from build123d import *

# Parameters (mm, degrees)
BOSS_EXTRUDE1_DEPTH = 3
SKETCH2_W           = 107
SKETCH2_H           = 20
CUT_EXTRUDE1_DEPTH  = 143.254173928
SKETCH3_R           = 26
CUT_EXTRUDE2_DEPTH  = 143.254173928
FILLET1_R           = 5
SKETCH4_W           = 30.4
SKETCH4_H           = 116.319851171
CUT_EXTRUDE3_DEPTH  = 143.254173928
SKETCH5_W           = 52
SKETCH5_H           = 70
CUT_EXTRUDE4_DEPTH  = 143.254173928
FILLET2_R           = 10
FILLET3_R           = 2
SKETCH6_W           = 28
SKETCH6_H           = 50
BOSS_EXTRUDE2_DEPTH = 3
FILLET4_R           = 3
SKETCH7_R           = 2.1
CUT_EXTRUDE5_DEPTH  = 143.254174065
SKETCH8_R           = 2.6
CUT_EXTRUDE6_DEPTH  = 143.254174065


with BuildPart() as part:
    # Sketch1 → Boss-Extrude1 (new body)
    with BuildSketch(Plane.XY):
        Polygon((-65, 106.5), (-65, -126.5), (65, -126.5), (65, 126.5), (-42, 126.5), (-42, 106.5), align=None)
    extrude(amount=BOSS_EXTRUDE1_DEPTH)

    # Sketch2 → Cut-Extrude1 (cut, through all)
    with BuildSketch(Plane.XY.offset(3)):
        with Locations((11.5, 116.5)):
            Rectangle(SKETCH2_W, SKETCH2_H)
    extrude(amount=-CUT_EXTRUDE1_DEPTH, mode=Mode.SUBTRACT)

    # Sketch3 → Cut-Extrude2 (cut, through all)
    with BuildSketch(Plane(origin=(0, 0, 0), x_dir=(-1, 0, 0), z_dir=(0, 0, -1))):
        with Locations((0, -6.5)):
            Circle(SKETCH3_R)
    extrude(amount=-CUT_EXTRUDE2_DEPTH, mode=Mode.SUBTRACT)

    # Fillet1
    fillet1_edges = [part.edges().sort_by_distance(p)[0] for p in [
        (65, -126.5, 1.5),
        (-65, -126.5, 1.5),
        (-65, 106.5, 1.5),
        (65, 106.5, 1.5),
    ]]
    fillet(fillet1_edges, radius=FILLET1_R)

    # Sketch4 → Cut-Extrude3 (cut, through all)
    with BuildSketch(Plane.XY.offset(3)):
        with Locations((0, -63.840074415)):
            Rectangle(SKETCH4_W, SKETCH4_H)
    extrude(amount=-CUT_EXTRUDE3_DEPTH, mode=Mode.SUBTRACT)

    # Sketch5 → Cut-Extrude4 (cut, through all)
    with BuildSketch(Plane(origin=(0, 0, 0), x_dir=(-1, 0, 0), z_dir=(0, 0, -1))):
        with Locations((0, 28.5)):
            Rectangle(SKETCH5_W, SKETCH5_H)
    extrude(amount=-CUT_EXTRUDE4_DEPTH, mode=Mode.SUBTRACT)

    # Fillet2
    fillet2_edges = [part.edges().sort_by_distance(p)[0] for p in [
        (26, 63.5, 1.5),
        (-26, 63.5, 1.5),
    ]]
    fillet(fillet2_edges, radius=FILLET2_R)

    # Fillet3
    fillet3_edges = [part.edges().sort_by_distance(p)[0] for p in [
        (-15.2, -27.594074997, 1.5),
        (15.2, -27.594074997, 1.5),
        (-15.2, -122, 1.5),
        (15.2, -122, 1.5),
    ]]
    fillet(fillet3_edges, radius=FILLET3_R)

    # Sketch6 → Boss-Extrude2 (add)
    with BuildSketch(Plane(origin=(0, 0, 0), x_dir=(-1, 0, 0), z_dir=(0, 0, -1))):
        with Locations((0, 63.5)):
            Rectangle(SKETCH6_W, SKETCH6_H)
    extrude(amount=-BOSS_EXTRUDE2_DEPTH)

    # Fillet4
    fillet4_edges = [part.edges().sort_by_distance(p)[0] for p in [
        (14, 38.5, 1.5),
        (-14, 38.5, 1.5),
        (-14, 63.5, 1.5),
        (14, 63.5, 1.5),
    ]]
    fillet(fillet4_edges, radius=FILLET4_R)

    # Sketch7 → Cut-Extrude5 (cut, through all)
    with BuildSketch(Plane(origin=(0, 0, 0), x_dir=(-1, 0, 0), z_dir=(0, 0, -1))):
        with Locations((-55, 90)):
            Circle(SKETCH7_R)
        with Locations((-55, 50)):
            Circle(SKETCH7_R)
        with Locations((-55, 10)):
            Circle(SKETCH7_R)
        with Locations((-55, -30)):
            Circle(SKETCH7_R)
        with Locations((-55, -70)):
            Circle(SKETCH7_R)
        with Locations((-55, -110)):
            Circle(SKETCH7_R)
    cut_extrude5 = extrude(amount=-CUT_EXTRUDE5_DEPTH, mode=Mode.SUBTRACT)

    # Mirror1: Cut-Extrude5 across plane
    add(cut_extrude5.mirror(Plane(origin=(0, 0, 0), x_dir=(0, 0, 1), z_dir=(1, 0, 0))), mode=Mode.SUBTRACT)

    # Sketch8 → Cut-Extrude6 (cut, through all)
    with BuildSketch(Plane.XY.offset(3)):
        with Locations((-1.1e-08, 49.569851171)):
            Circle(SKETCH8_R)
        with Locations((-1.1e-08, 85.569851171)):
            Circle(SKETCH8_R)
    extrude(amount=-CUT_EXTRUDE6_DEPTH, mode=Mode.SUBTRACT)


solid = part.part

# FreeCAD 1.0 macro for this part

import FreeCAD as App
import Part
import Sketcher
from FreeCAD import Vector


def edges_at(feature, points):
    """Names of the edges that pass closest to the given points."""
    edges = feature.Shape.Edges
    near = lambda p: min(range(len(edges)), key=lambda i: edges[i].distToShape(Part.Vertex(*p))[0])
    return sorted({f"Edge{near(p) + 1}" for p in points})

doc = App.newDocument("Part")
params = doc.addObject("Spreadsheet::Sheet", "Params")
for row, (alias, value) in enumerate([
    ("sketch1_width", "130 mm"),
    ("sketch1_width2", "107 mm"),
    ("sketch1_height", "233 mm"),
    ("sketch1_height2", "253 mm"),
    ("pad1_length", "3 mm"),
    ("sketch2_width", "107 mm"),
    ("sketch2_height", "20 mm"),
    ("sketch3_diameter", "52 mm"),
    ("fillet_radius", "5 mm"),
    ("sketch4_width", "30.4 mm"),
    ("sketch5_width", "52 mm"),
    ("sketch5_height", "70 mm"),
    ("fillet2_radius", "10 mm"),
    ("fillet3_radius", "2 mm"),
    ("sketch6_width", "28 mm"),
    ("sketch6_height", "50 mm"),
    ("pad2_length", "3 mm"),
    ("fillet4_radius", "3 mm"),
    ("sketch7_diameter", "4.2 mm"),
    ("sketch8_diameter", "5.2 mm"),
], start=1):
    params.set(f"A{row}", alias)
    params.set(f"B{row}", "=" + value)
    params.setAlias(f"B{row}", alias)

body = doc.addObject("PartDesign::Body", "Body")

sketch1 = body.newObject("Sketcher::SketchObject", "Sketch")
sketch1.AttachmentSupport = (doc.getObject("XY_Plane"), [""])
sketch1.MapMode = "FlatFace"
sketch1.addGeometry(Part.LineSegment(Vector(-65, 106.5, 0), Vector(-65, -126.5, 0)), False)
sketch1.addGeometry(Part.LineSegment(Vector(-65, -126.5, 0), Vector(65, -126.5, 0)), False)
sketch1.addGeometry(Part.LineSegment(Vector(65, -126.5, 0), Vector(65, 126.5, 0)), False)
sketch1.addGeometry(Part.LineSegment(Vector(65, 126.5, 0), Vector(-42, 126.5, 0)), False)
sketch1.addGeometry(Part.LineSegment(Vector(-42, 126.5, 0), Vector(-42, 106.5, 0)), False)
sketch1.addGeometry(Part.LineSegment(Vector(-42, 106.5, 0), Vector(-65, 106.5, 0)), False)
sketch1.addConstraint(Sketcher.Constraint("Coincident", 0, 2, 1, 1))
sketch1.addConstraint(Sketcher.Constraint("Coincident", 1, 2, 2, 1))
sketch1.addConstraint(Sketcher.Constraint("Coincident", 2, 2, 3, 1))
sketch1.addConstraint(Sketcher.Constraint("Coincident", 3, 2, 4, 1))
sketch1.addConstraint(Sketcher.Constraint("Coincident", 4, 2, 5, 1))
sketch1.addConstraint(Sketcher.Constraint("Coincident", 5, 2, 0, 1))
sketch1.addConstraint(Sketcher.Constraint("Vertical", 0))
sketch1.addConstraint(Sketcher.Constraint("Horizontal", 1))
sketch1.addConstraint(Sketcher.Constraint("Vertical", 2))
sketch1.addConstraint(Sketcher.Constraint("Horizontal", 3))
sketch1.addConstraint(Sketcher.Constraint("Vertical", 4))
sketch1.addConstraint(Sketcher.Constraint("Horizontal", 5))
sketch1.addConstraint(Sketcher.Constraint("Symmetric", 0, 2, 2, 2, -1, 1))
sketch1.addConstraint(Sketcher.Constraint("DistanceX", 1, 1, 1, 2, 130.0))
sketch1.addConstraint(Sketcher.Constraint("DistanceX", 3, 2, 3, 1, 107.0))
sketch1.addConstraint(Sketcher.Constraint("DistanceY", 0, 2, 0, 1, 233.0))
sketch1.addConstraint(Sketcher.Constraint("DistanceY", 2, 1, 2, 2, 253.0))
sketch1.setExpression("Constraints[13]", "Params.sketch1_width")
sketch1.setExpression("Constraints[14]", "Params.sketch1_width2")
sketch1.setExpression("Constraints[15]", "Params.sketch1_height")
sketch1.setExpression("Constraints[16]", "Params.sketch1_height2")
pad1 = body.newObject("PartDesign::Pad", "Pad")
pad1.Profile = sketch1
pad1.setExpression("Length", "Params.pad1_length")

sketch2 = body.newObject("Sketcher::SketchObject", "Sketch001")
sketch2.AttachmentSupport = (doc.getObject("XY_Plane"), [""])
sketch2.MapMode = "FlatFace"
sketch2.AttachmentOffset = App.Placement(Vector(0, 0, 3), App.Rotation())
sketch2.addGeometry(Part.LineSegment(Vector(-42, 126.5, 0), Vector(-42, 106.5, 0)), False)
sketch2.addGeometry(Part.LineSegment(Vector(-42, 106.5, 0), Vector(65, 106.5, 0)), False)
sketch2.addGeometry(Part.LineSegment(Vector(65, 106.5, 0), Vector(65, 126.5, 0)), False)
sketch2.addGeometry(Part.LineSegment(Vector(65, 126.5, 0), Vector(-42, 126.5, 0)), False)
sketch2.addConstraint(Sketcher.Constraint("Coincident", 0, 2, 1, 1))
sketch2.addConstraint(Sketcher.Constraint("Coincident", 1, 2, 2, 1))
sketch2.addConstraint(Sketcher.Constraint("Coincident", 2, 2, 3, 1))
sketch2.addConstraint(Sketcher.Constraint("Coincident", 3, 2, 0, 1))
sketch2.addConstraint(Sketcher.Constraint("Vertical", 0))
sketch2.addConstraint(Sketcher.Constraint("Horizontal", 1))
sketch2.addConstraint(Sketcher.Constraint("Vertical", 2))
sketch2.addConstraint(Sketcher.Constraint("Horizontal", 3))
sketch2.addConstraint(Sketcher.Constraint("DistanceX", 1, 1, 1, 2, 107.0))
sketch2.addConstraint(Sketcher.Constraint("DistanceY", 0, 2, 0, 1, 20.0))
sketch2.addConstraint(Sketcher.Constraint("DistanceX", 0, 2, -1, 1, 42.0))
sketch2.addConstraint(Sketcher.Constraint("DistanceY", -1, 1, 0, 2, 106.5))
sketch2.setExpression("Constraints[8]", "Params.sketch2_width")
sketch2.setExpression("Constraints[9]", "Params.sketch2_height")
pocket1 = body.newObject("PartDesign::Pocket", "Pocket")
pocket1.Profile = sketch2
pocket1.Type = "ThroughAll"

sketch3 = body.newObject("Sketcher::SketchObject", "Sketch002")
sketch3.AttachmentSupport = (doc.getObject("XY_Plane"), [""])
sketch3.MapMode = "FlatFace"
sketch3.addGeometry(Part.Circle(Vector(0, -6.5, 0), Vector(0, 0, 1), 26), False)
sketch3.addConstraint(Sketcher.Constraint("PointOnObject", 0, 3, -2))
sketch3.addConstraint(Sketcher.Constraint("Diameter", 0, 52.0))
sketch3.addConstraint(Sketcher.Constraint("DistanceY", 0, 3, -1, 1, 6.5))
sketch3.setExpression("Constraints[1]", "Params.sketch3_diameter")
pocket2 = body.newObject("PartDesign::Pocket", "Pocket001")
pocket2.Profile = sketch3
pocket2.Type = "ThroughAll"
pocket2.Reversed = True
doc.recompute()

fillet = body.newObject("PartDesign::Fillet", "Fillet")
fillet.Base = (pocket2, edges_at(pocket2, [
    (65, -126.5, 1.5),
    (-65, -126.5, 1.5),
    (-65, 106.5, 1.5),
    (65, 106.5, 1.5),
]))
fillet.setExpression("Radius", "Params.fillet_radius")

sketch4 = body.newObject("Sketcher::SketchObject", "Sketch003")
sketch4.AttachmentSupport = (doc.getObject("XY_Plane"), [""])
sketch4.MapMode = "FlatFace"
sketch4.AttachmentOffset = App.Placement(Vector(0, 0, 3), App.Rotation())
sketch4.addGeometry(Part.LineSegment(Vector(-15.2, -5.680149, 0), Vector(-15.2, -122, 0)), False)
sketch4.addGeometry(Part.LineSegment(Vector(-15.2, -122, 0), Vector(15.2, -122, 0)), False)
sketch4.addGeometry(Part.LineSegment(Vector(15.2, -122, 0), Vector(15.2, -5.680149, 0)), False)
sketch4.addGeometry(Part.LineSegment(Vector(15.2, -5.680149, 0), Vector(-15.2, -5.680149, 0)), False)
sketch4.addConstraint(Sketcher.Constraint("Coincident", 0, 2, 1, 1))
sketch4.addConstraint(Sketcher.Constraint("Coincident", 1, 2, 2, 1))
sketch4.addConstraint(Sketcher.Constraint("Coincident", 2, 2, 3, 1))
sketch4.addConstraint(Sketcher.Constraint("Coincident", 3, 2, 0, 1))
sketch4.addConstraint(Sketcher.Constraint("Vertical", 0))
sketch4.addConstraint(Sketcher.Constraint("Horizontal", 1))
sketch4.addConstraint(Sketcher.Constraint("Vertical", 2))
sketch4.addConstraint(Sketcher.Constraint("Horizontal", 3))
sketch4.addConstraint(Sketcher.Constraint("DistanceX", 1, 1, 1, 2, 30.4))
sketch4.addConstraint(Sketcher.Constraint("DistanceY", 0, 2, -1, 1, 122.0))
sketch4.addConstraint(Sketcher.Constraint("DistanceX", 0, 2, -1, 1, 15.2))
sketch4.addConstraint(Sketcher.Constraint("DistanceY", 0, 2, 0, 1, 116.319851))
sketch4.setExpression("Constraints[8]", "Params.sketch4_width")
pocket3 = body.newObject("PartDesign::Pocket", "Pocket002")
pocket3.Profile = sketch4
pocket3.Type = "ThroughAll"

sketch5 = body.newObject("Sketcher::SketchObject", "Sketch004")
sketch5.AttachmentSupport = (doc.getObject("XY_Plane"), [""])
sketch5.MapMode = "FlatFace"
sketch5.addGeometry(Part.LineSegment(Vector(26, 63.5, 0), Vector(26, -6.5, 0)), False)
sketch5.addGeometry(Part.LineSegment(Vector(26, -6.5, 0), Vector(-26, -6.5, 0)), False)
sketch5.addGeometry(Part.LineSegment(Vector(-26, -6.5, 0), Vector(-26, 63.5, 0)), False)
sketch5.addGeometry(Part.LineSegment(Vector(-26, 63.5, 0), Vector(26, 63.5, 0)), False)
sketch5.addConstraint(Sketcher.Constraint("Coincident", 0, 2, 1, 1))
sketch5.addConstraint(Sketcher.Constraint("Coincident", 1, 2, 2, 1))
sketch5.addConstraint(Sketcher.Constraint("Coincident", 2, 2, 3, 1))
sketch5.addConstraint(Sketcher.Constraint("Coincident", 3, 2, 0, 1))
sketch5.addConstraint(Sketcher.Constraint("Vertical", 0))
sketch5.addConstraint(Sketcher.Constraint("Horizontal", 1))
sketch5.addConstraint(Sketcher.Constraint("Vertical", 2))
sketch5.addConstraint(Sketcher.Constraint("Horizontal", 3))
sketch5.addConstraint(Sketcher.Constraint("DistanceX", 1, 2, 1, 1, 52.0))
sketch5.addConstraint(Sketcher.Constraint("DistanceY", 0, 2, 0, 1, 70.0))
sketch5.addConstraint(Sketcher.Constraint("DistanceX", -1, 1, 0, 2, 26.0))
sketch5.addConstraint(Sketcher.Constraint("DistanceY", 0, 2, -1, 1, 6.5))
sketch5.setExpression("Constraints[8]", "Params.sketch5_width")
sketch5.setExpression("Constraints[9]", "Params.sketch5_height")
pocket4 = body.newObject("PartDesign::Pocket", "Pocket003")
pocket4.Profile = sketch5
pocket4.Type = "ThroughAll"
pocket4.Reversed = True
doc.recompute()

fillet2 = body.newObject("PartDesign::Fillet", "Fillet001")
fillet2.Base = (pocket4, edges_at(pocket4, [(26, 63.5, 1.5), (-26, 63.5, 1.5)]))
fillet2.setExpression("Radius", "Params.fillet2_radius")
doc.recompute()

fillet3 = body.newObject("PartDesign::Fillet", "Fillet002")
fillet3.Base = (fillet2, edges_at(fillet2, [
    (-15.2, -27.594, 1.5),
    (15.2, -27.594, 1.5),
    (-15.2, -122, 1.5),
    (15.2, -122, 1.5),
]))
fillet3.setExpression("Radius", "Params.fillet3_radius")

sketch6 = body.newObject("Sketcher::SketchObject", "Sketch005")
sketch6.AttachmentSupport = (doc.getObject("XY_Plane"), [""])
sketch6.MapMode = "FlatFace"
sketch6.addGeometry(Part.LineSegment(Vector(14, 88.5, 0), Vector(14, 38.5, 0)), False)
sketch6.addGeometry(Part.LineSegment(Vector(14, 38.5, 0), Vector(-14, 38.5, 0)), False)
sketch6.addGeometry(Part.LineSegment(Vector(-14, 38.5, 0), Vector(-14, 88.5, 0)), False)
sketch6.addGeometry(Part.LineSegment(Vector(-14, 88.5, 0), Vector(14, 88.5, 0)), False)
sketch6.addConstraint(Sketcher.Constraint("Coincident", 0, 2, 1, 1))
sketch6.addConstraint(Sketcher.Constraint("Coincident", 1, 2, 2, 1))
sketch6.addConstraint(Sketcher.Constraint("Coincident", 2, 2, 3, 1))
sketch6.addConstraint(Sketcher.Constraint("Coincident", 3, 2, 0, 1))
sketch6.addConstraint(Sketcher.Constraint("Vertical", 0))
sketch6.addConstraint(Sketcher.Constraint("Horizontal", 1))
sketch6.addConstraint(Sketcher.Constraint("Vertical", 2))
sketch6.addConstraint(Sketcher.Constraint("Horizontal", 3))
sketch6.addConstraint(Sketcher.Constraint("DistanceX", 1, 2, 1, 1, 28.0))
sketch6.addConstraint(Sketcher.Constraint("DistanceY", 0, 2, 0, 1, 50.0))
sketch6.addConstraint(Sketcher.Constraint("DistanceX", -1, 1, 0, 2, 14.0))
sketch6.addConstraint(Sketcher.Constraint("DistanceY", -1, 1, 0, 2, 38.5))
sketch6.setExpression("Constraints[8]", "Params.sketch6_width")
sketch6.setExpression("Constraints[9]", "Params.sketch6_height")
pad2 = body.newObject("PartDesign::Pad", "Pad001")
pad2.Profile = sketch6
pad2.setExpression("Length", "Params.pad2_length")
doc.recompute()

fillet4 = body.newObject("PartDesign::Fillet", "Fillet003")
fillet4.Base = (pad2, edges_at(pad2, [
    (14, 38.5, 1.5),
    (-14, 38.5, 1.5),
    (-14, 63.5, 1.5),
    (14, 63.5, 1.5),
]))
fillet4.setExpression("Radius", "Params.fillet4_radius")

sketch7 = body.newObject("Sketcher::SketchObject", "Sketch006")
sketch7.AttachmentSupport = (doc.getObject("XY_Plane"), [""])
sketch7.MapMode = "FlatFace"
sketch7.addGeometry(Part.Circle(Vector(55, 90, 0), Vector(0, 0, 1), 2.1), False)
sketch7.addGeometry(Part.Circle(Vector(55, 50, 0), Vector(0, 0, 1), 2.1), False)
sketch7.addGeometry(Part.Circle(Vector(55, 10, 0), Vector(0, 0, 1), 2.1), False)
sketch7.addGeometry(Part.Circle(Vector(55, -30, 0), Vector(0, 0, 1), 2.1), False)
sketch7.addGeometry(Part.Circle(Vector(55, -70, 0), Vector(0, 0, 1), 2.1), False)
sketch7.addGeometry(Part.Circle(Vector(55, -110, 0), Vector(0, 0, 1), 2.1), False)
sketch7.addConstraint(Sketcher.Constraint("Equal", 0, 1))
sketch7.addConstraint(Sketcher.Constraint("Equal", 1, 2))
sketch7.addConstraint(Sketcher.Constraint("Equal", 2, 3))
sketch7.addConstraint(Sketcher.Constraint("Equal", 3, 4))
sketch7.addConstraint(Sketcher.Constraint("Equal", 4, 5))
sketch7.addConstraint(Sketcher.Constraint("Vertical", 0, 3, 1, 3))
sketch7.addConstraint(Sketcher.Constraint("Vertical", 1, 3, 2, 3))
sketch7.addConstraint(Sketcher.Constraint("Vertical", 2, 3, 3, 3))
sketch7.addConstraint(Sketcher.Constraint("Vertical", 3, 3, 4, 3))
sketch7.addConstraint(Sketcher.Constraint("Vertical", 4, 3, 5, 3))
sketch7.addConstraint(Sketcher.Constraint("Diameter", 0, 4.2))
sketch7.addConstraint(Sketcher.Constraint("DistanceX", -1, 1, 0, 3, 55.0))
sketch7.addConstraint(Sketcher.Constraint("DistanceY", -1, 1, 0, 3, 90.0))
sketch7.addConstraint(Sketcher.Constraint("DistanceY", -1, 1, 1, 3, 50.0))
sketch7.addConstraint(Sketcher.Constraint("DistanceY", -1, 1, 2, 3, 10.0))
sketch7.addConstraint(Sketcher.Constraint("DistanceY", 3, 3, -1, 1, 30.0))
sketch7.addConstraint(Sketcher.Constraint("DistanceY", 4, 3, -1, 1, 70.0))
sketch7.addConstraint(Sketcher.Constraint("DistanceY", 5, 3, -1, 1, 110.0))
sketch7.setExpression("Constraints[10]", "Params.sketch7_diameter")
pocket5 = body.newObject("PartDesign::Pocket", "Pocket004")
pocket5.Profile = sketch7
pocket5.Type = "ThroughAll"
pocket5.Reversed = True
doc.recompute()

mirrored = body.newObject("PartDesign::Mirrored", "Mirrored")
mirrored.Originals = [pocket5]
mirrored.MirrorPlane = (doc.getObject("YZ_Plane"), [""])
body.Tip = mirrored

sketch8 = body.newObject("Sketcher::SketchObject", "Sketch007")
sketch8.AttachmentSupport = (doc.getObject("XY_Plane"), [""])
sketch8.MapMode = "FlatFace"
sketch8.AttachmentOffset = App.Placement(Vector(0, 0, 3), App.Rotation())
sketch8.addGeometry(Part.Circle(Vector(0, 49.569851, 0), Vector(0, 0, 1), 2.6), False)
sketch8.addGeometry(Part.Circle(Vector(0, 85.569851, 0), Vector(0, 0, 1), 2.6), False)
sketch8.addConstraint(Sketcher.Constraint("Equal", 0, 1))
sketch8.addConstraint(Sketcher.Constraint("PointOnObject", 0, 3, -2))
sketch8.addConstraint(Sketcher.Constraint("PointOnObject", 1, 3, -2))
sketch8.addConstraint(Sketcher.Constraint("Diameter", 0, 5.2))
sketch8.addConstraint(Sketcher.Constraint("DistanceY", 0, 3, 1, 3, 36.0))
sketch8.addConstraint(Sketcher.Constraint("DistanceY", -1, 1, 0, 3, 49.569851))
sketch8.setExpression("Constraints[3]", "Params.sketch8_diameter")
pocket6 = body.newObject("PartDesign::Pocket", "Pocket005")
pocket6.Profile = sketch8
pocket6.Type = "ThroughAll"

doc.recompute()
